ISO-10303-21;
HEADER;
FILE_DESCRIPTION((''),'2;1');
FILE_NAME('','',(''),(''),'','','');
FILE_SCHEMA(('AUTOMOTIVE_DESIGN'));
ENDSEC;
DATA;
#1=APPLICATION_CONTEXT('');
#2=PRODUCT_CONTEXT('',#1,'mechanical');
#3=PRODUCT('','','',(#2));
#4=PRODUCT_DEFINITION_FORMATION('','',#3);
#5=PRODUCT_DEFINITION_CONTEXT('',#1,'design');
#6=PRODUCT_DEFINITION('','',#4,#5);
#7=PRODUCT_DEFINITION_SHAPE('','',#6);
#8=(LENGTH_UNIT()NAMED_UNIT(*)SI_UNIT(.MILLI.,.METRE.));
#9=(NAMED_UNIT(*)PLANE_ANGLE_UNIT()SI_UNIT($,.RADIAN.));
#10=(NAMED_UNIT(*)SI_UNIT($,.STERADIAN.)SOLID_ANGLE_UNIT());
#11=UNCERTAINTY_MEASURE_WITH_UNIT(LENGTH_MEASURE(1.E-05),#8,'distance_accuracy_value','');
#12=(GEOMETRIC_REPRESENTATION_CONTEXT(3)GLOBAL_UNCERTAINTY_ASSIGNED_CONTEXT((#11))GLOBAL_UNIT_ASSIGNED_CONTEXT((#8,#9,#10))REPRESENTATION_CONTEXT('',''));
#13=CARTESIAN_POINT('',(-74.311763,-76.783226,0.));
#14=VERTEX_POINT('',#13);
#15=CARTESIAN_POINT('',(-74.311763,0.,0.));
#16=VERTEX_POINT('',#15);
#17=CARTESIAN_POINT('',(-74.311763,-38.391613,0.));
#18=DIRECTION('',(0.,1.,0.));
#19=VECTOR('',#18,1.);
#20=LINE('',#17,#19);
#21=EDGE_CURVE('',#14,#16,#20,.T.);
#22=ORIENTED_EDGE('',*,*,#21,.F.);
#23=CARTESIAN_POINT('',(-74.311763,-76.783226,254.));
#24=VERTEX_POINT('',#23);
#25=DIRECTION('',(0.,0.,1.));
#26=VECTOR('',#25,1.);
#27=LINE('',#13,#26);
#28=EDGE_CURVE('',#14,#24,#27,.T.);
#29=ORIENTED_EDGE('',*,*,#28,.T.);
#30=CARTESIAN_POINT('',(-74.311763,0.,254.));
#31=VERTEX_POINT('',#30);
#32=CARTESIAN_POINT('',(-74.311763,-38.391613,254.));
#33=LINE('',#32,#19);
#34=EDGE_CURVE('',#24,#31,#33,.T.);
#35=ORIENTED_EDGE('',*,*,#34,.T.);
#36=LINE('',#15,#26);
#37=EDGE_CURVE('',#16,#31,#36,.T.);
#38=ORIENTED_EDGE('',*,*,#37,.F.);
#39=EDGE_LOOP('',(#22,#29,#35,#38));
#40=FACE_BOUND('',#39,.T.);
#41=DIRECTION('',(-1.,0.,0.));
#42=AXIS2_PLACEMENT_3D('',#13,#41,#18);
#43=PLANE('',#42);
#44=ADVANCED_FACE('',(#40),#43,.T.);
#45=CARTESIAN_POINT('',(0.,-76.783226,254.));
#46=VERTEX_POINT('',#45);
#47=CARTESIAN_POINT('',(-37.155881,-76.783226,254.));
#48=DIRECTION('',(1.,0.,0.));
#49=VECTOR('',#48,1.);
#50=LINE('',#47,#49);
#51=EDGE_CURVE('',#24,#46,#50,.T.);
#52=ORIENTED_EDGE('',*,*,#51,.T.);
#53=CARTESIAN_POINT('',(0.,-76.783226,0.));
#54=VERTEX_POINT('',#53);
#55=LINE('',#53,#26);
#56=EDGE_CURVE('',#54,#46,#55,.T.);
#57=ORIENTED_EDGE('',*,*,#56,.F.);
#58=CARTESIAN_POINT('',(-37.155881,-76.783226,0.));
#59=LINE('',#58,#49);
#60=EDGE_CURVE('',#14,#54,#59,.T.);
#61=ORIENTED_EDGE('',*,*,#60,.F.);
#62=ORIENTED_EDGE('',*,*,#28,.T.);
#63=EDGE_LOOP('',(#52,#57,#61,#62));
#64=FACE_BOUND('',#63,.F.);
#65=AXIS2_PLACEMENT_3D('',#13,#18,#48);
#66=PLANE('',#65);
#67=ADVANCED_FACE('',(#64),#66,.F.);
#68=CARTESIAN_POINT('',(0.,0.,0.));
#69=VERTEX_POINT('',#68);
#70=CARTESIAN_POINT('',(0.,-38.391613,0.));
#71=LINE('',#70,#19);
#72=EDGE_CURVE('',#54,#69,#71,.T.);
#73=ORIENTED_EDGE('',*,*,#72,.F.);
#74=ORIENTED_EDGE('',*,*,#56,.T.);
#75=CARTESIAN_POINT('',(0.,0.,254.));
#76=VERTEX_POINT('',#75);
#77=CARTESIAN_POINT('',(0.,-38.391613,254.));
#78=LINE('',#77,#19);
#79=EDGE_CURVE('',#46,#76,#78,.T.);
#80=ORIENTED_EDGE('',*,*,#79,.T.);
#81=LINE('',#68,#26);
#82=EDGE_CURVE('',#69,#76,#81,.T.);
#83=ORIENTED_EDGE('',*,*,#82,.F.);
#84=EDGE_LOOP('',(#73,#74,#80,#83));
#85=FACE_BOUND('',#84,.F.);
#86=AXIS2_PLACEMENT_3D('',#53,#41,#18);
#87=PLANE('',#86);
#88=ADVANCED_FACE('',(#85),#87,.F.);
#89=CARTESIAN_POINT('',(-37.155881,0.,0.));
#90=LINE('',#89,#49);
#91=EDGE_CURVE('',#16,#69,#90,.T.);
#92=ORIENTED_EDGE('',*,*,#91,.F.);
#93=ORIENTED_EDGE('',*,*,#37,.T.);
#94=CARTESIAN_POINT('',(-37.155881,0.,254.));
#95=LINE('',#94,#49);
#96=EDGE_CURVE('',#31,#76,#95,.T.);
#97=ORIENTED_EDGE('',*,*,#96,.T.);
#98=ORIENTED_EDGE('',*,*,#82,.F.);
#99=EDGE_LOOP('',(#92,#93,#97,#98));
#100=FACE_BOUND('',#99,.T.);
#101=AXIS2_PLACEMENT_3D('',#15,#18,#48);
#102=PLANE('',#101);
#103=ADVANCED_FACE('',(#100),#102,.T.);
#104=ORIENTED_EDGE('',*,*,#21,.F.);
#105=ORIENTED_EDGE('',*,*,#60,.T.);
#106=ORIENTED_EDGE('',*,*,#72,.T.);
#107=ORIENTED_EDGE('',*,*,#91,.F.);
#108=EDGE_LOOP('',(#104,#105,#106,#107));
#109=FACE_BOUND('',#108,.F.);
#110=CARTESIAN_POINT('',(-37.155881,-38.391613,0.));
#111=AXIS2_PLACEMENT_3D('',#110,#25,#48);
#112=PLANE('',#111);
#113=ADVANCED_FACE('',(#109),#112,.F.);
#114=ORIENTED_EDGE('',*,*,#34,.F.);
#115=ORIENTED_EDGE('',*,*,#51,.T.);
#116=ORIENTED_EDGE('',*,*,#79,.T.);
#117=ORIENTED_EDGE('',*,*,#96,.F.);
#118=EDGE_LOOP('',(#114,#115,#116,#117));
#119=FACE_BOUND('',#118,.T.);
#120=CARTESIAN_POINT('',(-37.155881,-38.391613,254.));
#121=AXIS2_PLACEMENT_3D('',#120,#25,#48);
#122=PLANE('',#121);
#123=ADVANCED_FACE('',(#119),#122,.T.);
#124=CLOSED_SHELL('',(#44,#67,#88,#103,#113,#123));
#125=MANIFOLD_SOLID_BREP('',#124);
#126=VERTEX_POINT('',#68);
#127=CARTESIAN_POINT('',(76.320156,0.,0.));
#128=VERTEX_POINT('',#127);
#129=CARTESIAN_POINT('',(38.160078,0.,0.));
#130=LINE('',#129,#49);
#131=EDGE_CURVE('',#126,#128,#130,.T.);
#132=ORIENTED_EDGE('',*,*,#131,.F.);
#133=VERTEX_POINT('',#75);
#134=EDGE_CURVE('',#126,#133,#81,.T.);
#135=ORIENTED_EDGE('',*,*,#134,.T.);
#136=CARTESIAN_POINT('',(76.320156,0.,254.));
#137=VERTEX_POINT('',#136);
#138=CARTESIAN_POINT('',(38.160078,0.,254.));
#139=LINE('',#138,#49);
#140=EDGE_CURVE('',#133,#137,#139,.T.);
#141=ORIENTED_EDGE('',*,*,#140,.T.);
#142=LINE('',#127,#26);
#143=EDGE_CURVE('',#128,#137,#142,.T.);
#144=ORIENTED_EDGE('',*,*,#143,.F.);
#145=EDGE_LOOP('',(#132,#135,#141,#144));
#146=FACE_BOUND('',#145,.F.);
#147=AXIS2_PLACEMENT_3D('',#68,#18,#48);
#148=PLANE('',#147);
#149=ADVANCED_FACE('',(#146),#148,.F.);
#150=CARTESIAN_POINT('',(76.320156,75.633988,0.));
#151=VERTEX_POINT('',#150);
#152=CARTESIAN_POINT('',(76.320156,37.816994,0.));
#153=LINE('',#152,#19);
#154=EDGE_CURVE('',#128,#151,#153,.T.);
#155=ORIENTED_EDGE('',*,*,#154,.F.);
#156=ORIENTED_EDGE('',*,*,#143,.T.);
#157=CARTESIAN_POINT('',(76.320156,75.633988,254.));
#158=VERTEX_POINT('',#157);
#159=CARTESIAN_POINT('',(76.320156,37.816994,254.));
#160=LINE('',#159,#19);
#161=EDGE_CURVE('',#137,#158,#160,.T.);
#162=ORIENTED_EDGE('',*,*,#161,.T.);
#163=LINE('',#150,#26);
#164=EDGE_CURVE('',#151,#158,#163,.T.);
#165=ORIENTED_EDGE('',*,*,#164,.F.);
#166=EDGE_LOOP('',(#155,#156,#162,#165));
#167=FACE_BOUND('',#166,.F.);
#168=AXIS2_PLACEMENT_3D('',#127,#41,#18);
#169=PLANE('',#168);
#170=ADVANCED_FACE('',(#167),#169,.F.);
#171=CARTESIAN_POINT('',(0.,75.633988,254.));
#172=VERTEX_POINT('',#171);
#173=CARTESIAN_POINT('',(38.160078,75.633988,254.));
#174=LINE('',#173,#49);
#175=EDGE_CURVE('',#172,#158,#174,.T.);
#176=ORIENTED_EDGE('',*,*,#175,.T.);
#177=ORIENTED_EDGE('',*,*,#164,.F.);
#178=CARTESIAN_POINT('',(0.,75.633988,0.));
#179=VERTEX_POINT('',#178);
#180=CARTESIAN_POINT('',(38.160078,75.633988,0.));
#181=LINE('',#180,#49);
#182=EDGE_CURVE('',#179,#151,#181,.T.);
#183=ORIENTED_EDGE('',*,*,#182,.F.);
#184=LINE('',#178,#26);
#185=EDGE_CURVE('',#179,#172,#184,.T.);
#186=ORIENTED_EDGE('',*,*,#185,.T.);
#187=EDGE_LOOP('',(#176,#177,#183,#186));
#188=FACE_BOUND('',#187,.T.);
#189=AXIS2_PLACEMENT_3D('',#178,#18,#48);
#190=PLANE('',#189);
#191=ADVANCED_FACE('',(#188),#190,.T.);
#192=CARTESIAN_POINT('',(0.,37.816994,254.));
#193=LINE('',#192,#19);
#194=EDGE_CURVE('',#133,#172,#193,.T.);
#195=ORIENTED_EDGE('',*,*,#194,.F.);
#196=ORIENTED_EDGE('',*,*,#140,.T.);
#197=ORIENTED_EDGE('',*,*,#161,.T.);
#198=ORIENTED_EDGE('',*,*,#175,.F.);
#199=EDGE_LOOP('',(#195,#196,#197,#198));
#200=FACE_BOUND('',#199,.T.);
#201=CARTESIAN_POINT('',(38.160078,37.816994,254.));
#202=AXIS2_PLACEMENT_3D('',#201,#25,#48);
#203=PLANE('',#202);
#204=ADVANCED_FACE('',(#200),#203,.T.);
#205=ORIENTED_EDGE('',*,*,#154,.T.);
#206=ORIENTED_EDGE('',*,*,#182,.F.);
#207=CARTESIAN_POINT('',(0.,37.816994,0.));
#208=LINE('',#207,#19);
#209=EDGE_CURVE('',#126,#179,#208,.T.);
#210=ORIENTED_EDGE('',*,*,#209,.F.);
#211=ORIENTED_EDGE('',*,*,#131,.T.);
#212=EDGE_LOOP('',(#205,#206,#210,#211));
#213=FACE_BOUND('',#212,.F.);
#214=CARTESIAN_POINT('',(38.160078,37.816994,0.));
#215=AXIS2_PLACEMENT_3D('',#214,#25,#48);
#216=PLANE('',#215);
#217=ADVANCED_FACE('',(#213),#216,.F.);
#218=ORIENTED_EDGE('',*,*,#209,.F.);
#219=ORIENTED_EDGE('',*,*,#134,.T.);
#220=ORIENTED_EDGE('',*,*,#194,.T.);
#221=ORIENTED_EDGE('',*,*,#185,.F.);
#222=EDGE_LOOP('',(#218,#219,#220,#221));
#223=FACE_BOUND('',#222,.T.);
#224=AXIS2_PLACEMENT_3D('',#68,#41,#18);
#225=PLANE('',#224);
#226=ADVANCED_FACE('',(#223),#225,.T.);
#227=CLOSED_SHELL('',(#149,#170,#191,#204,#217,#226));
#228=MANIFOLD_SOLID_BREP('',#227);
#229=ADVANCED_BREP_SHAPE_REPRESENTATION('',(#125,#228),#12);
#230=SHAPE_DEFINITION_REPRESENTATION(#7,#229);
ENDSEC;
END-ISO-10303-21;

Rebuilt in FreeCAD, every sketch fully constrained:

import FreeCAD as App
import Part
import Sketcher
from FreeCAD import Vector
Q = App.Units.Quantity

doc = App.newDocument("Part")
body = doc.addObject("PartDesign::Body", "Body")
body.AllowCompound = True

# Sketch on XY plane
sketch1 = body.newObject("Sketcher::SketchObject", "Sketch")
sketch1.AttachmentSupport = (doc.getObject("XY_Plane"), [""])
sketch1.MapMode = "FlatFace"
sketch1.addGeometry([
    Part.LineSegment(Vector(0, 76, 0), Vector(0, 0, 0)),  # 0
    Part.LineSegment(Vector(0, 0, 0), Vector(76, 0, 0)),  # 1
    Part.LineSegment(Vector(76, 0, 0), Vector(76, 76, 0)),  # 2
    Part.LineSegment(Vector(76, 76, 0), Vector(0, 76, 0)),  # 3
    Part.LineSegment(Vector(-74, 0, 0), Vector(-74, -77, 0)),  # 4
    Part.LineSegment(Vector(-74, -77, 0), Vector(0, -77, 0)),  # 5
    Part.LineSegment(Vector(0, -77, 0), Vector(0, 0, 0)),  # 6
    Part.LineSegment(Vector(0, 0, 0), Vector(-74, 0, 0)),  # 7
], False)
sketch1.addConstraint([
    Sketcher.Constraint("Coincident", 0, 2, 1, 1),
    Sketcher.Constraint("Coincident", 1, 2, 2, 1),
    Sketcher.Constraint("Coincident", 2, 2, 3, 1),
    Sketcher.Constraint("Coincident", 3, 2, 0, 1),
    Sketcher.Constraint("Coincident", 4, 2, 5, 1),
    Sketcher.Constraint("Coincident", 5, 2, 6, 1),
    Sketcher.Constraint("Coincident", 6, 2, 7, 1),
    Sketcher.Constraint("Coincident", 7, 2, 4, 1),
    Sketcher.Constraint("Vertical", 0),
    Sketcher.Constraint("Horizontal", 1),
    Sketcher.Constraint("Vertical", 2),
    Sketcher.Constraint("Horizontal", 3),
    Sketcher.Constraint("Vertical", 4),
    Sketcher.Constraint("Horizontal", 5),
    Sketcher.Constraint("Vertical", 6),
    Sketcher.Constraint("Horizontal", 7),
    Sketcher.Constraint("Coincident", 0, 2, -1, 1),
    Sketcher.Constraint("Coincident", 6, 2, -1, 1),
    Sketcher.Constraint("DistanceY", 0, 2, 0, 1, 75.633988),
    Sketcher.Constraint("DistanceX", 1, 1, 1, 2, 76.320156),
    Sketcher.Constraint("DistanceX", 5, 1, 5, 2, 74.311763),
    Sketcher.Constraint("DistanceY", 4, 2, 4, 1, 76.783225),
])
pad1 = body.newObject("PartDesign::Pad", "Pad")
pad1.Profile = sketch1
pad1.Length = Q("10 in")

doc.recompute()
